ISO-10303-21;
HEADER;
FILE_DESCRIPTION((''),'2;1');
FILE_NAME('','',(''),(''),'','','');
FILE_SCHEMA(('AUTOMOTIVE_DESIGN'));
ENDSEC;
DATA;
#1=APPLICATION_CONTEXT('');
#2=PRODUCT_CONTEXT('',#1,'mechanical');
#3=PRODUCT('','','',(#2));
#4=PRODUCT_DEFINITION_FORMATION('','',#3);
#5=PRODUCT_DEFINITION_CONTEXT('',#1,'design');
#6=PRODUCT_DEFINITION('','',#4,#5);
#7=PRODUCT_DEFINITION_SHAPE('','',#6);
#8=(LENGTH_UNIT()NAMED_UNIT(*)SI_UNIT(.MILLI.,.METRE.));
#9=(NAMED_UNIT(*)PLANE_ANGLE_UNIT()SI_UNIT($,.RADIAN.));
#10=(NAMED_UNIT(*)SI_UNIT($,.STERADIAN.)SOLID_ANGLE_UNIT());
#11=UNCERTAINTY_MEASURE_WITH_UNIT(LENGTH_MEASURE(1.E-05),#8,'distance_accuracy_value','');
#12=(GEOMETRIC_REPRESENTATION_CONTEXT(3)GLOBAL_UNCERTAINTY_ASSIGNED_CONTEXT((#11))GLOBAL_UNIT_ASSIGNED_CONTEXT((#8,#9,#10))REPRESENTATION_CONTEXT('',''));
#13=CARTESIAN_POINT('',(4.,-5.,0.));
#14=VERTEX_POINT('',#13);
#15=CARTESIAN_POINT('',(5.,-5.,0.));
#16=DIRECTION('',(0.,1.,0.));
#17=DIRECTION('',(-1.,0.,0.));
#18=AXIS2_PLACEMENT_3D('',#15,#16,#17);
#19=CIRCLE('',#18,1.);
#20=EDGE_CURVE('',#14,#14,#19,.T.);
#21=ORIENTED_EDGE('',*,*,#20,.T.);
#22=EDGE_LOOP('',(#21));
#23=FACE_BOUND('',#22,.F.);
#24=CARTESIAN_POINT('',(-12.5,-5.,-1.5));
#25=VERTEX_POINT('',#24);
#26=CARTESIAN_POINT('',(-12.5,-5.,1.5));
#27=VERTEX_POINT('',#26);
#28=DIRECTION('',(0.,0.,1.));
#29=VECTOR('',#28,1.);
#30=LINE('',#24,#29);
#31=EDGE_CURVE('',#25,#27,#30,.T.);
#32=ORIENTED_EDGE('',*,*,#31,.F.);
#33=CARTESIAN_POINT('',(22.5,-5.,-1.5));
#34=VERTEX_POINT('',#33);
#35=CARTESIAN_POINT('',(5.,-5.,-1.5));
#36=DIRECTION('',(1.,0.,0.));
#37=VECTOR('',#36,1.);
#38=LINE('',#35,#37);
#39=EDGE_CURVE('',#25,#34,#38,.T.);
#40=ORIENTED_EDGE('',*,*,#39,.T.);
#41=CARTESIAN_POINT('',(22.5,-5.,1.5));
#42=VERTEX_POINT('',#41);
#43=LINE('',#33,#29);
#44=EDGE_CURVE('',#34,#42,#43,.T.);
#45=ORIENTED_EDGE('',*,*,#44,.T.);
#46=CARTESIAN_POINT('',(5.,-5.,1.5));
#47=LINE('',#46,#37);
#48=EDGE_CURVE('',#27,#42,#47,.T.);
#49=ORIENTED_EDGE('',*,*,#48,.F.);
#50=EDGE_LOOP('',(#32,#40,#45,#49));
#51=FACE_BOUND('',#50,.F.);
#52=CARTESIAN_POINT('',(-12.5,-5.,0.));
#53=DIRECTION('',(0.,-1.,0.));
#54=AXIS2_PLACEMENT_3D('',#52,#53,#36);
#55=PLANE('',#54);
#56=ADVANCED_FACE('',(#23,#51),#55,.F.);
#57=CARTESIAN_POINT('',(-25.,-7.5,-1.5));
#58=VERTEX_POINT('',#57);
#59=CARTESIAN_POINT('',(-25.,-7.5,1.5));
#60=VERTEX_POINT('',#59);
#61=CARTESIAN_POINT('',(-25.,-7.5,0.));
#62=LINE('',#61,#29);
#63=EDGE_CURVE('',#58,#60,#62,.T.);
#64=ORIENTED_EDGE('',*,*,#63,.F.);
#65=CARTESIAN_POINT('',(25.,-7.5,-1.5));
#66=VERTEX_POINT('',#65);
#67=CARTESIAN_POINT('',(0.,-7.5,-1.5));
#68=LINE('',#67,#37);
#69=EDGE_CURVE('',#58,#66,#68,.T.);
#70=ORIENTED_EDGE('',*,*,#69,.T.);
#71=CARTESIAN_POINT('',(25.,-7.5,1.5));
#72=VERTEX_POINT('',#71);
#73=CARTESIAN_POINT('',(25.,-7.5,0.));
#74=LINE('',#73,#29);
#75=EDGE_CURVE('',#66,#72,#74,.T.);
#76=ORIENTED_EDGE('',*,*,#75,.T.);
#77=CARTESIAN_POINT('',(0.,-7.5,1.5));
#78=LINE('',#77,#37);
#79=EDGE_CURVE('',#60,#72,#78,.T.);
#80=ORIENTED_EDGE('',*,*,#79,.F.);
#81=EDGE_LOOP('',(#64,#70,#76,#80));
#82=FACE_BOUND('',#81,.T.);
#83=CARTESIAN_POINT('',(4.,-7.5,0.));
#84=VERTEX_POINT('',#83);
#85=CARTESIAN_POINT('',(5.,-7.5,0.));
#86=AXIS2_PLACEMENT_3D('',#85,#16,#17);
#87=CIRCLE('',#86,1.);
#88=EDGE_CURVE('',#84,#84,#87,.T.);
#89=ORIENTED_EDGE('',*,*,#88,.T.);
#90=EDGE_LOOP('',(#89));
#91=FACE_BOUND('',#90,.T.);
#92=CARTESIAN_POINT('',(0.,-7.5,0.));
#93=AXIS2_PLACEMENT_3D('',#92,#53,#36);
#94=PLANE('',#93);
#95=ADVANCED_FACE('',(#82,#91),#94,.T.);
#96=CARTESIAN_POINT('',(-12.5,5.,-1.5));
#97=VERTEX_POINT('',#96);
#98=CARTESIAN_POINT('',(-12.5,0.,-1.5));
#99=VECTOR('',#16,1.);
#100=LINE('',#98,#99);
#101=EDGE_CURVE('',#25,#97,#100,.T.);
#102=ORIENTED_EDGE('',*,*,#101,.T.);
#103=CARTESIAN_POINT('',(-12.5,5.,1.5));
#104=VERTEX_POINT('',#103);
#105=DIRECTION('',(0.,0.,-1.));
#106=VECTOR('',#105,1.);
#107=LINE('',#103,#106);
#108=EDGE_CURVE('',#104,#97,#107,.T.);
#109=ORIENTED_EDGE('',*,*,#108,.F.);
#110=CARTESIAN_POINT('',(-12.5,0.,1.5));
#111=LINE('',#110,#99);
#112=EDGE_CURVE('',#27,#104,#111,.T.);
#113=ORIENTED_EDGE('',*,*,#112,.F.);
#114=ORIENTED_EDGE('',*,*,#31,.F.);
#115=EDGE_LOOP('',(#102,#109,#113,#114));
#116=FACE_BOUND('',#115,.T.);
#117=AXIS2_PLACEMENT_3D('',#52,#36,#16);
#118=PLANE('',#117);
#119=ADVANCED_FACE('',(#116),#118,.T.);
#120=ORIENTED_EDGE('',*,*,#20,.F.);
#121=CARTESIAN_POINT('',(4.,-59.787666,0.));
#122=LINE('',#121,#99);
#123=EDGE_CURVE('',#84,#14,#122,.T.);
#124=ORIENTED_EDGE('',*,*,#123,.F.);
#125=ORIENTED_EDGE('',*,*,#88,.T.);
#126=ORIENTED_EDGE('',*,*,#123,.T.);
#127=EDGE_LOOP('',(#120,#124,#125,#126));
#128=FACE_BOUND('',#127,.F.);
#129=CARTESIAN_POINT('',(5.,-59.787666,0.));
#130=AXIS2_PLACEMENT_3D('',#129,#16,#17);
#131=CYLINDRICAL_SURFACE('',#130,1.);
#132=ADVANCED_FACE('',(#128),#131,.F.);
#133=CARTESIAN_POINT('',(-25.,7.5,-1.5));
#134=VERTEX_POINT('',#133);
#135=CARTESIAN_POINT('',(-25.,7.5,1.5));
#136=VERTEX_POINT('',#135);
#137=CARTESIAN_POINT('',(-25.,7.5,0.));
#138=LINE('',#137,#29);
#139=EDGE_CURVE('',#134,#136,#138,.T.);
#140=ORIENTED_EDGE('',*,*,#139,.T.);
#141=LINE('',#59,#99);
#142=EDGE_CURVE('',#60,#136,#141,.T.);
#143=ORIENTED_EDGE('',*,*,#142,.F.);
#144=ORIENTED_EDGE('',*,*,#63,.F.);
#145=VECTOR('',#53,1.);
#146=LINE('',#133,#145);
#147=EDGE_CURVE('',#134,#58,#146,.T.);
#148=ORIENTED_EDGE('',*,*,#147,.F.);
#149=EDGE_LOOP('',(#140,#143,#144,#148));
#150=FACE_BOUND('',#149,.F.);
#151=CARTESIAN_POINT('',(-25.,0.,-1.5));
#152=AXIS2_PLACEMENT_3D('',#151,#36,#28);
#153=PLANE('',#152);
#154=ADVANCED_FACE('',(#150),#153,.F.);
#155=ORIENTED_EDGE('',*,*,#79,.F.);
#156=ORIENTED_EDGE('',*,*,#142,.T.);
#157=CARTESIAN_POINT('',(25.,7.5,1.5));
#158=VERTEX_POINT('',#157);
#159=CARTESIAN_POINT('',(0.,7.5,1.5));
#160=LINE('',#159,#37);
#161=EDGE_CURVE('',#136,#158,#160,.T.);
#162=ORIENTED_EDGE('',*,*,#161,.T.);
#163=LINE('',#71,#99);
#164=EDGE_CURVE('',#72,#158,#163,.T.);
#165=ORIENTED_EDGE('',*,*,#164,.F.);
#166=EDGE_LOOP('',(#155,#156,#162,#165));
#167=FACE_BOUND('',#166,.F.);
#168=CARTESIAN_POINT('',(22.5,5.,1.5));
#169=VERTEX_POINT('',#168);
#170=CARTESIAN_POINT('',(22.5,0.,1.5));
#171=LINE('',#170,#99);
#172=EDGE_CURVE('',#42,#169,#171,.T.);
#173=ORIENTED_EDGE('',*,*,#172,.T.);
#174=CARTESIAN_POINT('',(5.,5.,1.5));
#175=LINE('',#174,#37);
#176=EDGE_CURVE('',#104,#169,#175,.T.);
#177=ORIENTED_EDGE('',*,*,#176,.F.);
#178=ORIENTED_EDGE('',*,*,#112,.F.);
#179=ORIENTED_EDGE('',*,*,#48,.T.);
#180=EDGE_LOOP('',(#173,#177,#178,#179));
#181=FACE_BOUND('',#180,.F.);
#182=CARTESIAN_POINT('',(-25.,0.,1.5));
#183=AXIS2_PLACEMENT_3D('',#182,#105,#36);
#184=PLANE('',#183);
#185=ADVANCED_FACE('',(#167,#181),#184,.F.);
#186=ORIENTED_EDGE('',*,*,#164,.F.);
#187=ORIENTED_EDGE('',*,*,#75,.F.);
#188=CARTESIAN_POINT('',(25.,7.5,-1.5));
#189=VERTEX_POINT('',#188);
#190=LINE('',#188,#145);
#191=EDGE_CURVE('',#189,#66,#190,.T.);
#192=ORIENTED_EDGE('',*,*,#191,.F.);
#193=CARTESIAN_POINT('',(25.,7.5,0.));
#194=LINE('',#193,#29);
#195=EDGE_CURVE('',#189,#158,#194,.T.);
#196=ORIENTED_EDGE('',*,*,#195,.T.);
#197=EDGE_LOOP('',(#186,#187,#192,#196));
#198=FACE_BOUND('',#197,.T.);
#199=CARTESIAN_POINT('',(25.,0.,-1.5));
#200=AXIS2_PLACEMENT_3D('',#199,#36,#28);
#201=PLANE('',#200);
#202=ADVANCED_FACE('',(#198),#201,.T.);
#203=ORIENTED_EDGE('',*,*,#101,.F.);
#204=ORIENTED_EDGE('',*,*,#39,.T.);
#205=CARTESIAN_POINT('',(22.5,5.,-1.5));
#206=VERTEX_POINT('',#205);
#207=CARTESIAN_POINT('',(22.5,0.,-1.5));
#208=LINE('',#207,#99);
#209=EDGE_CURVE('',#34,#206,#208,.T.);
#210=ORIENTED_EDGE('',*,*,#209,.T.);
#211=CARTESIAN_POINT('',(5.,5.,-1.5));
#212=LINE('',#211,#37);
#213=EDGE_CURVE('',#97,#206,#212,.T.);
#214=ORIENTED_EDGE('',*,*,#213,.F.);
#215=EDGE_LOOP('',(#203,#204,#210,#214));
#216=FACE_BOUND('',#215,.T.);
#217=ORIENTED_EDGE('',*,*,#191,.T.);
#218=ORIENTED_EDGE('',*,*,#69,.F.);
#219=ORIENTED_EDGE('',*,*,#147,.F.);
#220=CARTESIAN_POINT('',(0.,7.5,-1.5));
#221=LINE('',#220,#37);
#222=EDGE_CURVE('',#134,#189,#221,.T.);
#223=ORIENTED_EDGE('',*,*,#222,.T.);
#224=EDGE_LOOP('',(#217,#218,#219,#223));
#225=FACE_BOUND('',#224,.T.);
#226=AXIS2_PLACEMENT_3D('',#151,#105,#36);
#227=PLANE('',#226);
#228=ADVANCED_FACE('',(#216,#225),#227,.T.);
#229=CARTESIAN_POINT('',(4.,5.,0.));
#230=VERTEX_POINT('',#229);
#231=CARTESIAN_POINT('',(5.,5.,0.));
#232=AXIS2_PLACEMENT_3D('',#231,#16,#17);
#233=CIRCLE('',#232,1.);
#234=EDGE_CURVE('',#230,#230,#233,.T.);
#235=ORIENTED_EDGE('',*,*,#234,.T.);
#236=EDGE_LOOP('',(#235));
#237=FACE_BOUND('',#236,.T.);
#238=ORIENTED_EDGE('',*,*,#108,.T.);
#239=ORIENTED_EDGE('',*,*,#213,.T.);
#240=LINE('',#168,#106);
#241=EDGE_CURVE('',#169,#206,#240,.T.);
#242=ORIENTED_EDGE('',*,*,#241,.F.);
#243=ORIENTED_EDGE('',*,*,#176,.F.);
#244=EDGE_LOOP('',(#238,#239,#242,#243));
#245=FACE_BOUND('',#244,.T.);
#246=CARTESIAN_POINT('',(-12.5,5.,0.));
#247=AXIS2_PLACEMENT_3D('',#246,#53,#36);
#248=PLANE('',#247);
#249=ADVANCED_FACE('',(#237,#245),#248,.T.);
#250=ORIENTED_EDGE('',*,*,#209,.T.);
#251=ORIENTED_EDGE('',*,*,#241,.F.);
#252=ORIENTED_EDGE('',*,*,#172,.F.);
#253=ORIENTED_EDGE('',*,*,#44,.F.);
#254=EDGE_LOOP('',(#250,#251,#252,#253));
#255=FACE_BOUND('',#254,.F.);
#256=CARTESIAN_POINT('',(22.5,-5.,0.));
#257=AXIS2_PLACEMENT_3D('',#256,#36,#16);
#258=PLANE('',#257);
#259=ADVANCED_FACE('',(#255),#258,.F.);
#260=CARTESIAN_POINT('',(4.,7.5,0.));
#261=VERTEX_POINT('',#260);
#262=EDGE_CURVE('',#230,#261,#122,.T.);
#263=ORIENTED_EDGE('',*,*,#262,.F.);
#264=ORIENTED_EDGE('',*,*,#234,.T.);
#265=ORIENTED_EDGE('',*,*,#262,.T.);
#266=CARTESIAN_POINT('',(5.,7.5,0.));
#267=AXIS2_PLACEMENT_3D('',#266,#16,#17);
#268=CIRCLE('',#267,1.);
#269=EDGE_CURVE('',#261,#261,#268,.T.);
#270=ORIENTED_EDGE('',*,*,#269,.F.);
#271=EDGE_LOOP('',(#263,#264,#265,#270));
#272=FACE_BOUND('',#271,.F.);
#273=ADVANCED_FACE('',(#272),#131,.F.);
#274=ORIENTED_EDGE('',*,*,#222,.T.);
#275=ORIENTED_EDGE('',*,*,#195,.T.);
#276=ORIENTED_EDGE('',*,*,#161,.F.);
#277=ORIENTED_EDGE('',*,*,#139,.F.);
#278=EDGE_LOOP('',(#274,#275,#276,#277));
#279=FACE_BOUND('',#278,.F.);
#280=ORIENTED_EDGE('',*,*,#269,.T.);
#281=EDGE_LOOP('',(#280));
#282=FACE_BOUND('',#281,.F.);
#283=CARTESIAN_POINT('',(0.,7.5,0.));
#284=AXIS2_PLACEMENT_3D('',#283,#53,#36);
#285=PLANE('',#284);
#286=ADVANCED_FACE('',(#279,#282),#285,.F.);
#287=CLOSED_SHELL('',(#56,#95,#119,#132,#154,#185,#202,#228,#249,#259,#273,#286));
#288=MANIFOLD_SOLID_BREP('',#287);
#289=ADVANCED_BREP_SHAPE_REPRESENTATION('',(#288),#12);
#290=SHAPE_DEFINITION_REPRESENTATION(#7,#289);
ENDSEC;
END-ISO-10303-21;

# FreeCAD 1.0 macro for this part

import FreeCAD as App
import Part
import Sketcher

V = App.Vector

doc = App.newDocument("Part")
body = doc.addObject("PartDesign::Body", "Body")

sketch1 = doc.addObject("Sketcher::SketchObject", "Sketch")
body.addObject(sketch1)
sketch1.AttachmentSupport = (doc.XZ_Plane, [""])
sketch1.MapMode = "FlatFace"
sketch1.addGeometry(Part.LineSegment(V(-25, 1.5, 0), V(-25, -1.5, 0)), False)
sketch1.addGeometry(Part.LineSegment(V(-25, -1.5, 0), V(25, -1.5, 0)), False)
sketch1.addGeometry(Part.LineSegment(V(25, -1.5, 0), V(25, 1.5, 0)), False)
sketch1.addGeometry(Part.LineSegment(V(25, 1.5, 0), V(-25, 1.5, 0)), False)
sketch1.addConstraint(Sketcher.Constraint("Coincident", 0, 2, 1, 1))
sketch1.addConstraint(Sketcher.Constraint("Coincident", 1, 2, 2, 1))
sketch1.addConstraint(Sketcher.Constraint("Coincident", 2, 2, 3, 1))
sketch1.addConstraint(Sketcher.Constraint("Coincident", 3, 2, 0, 1))
sketch1.addConstraint(Sketcher.Constraint("Vertical", 0))
sketch1.addConstraint(Sketcher.Constraint("Horizontal", 1))
sketch1.addConstraint(Sketcher.Constraint("Vertical", 2))
sketch1.addConstraint(Sketcher.Constraint("Horizontal", 3))
sketch1.addConstraint(Sketcher.Constraint("Symmetric", 0, 2, 2, 2, -1, 1))
sketch1.addConstraint(Sketcher.Constraint("DistanceX", 1, 1, 1, 2, 50.0))
sketch1.addConstraint(Sketcher.Constraint("DistanceY", 0, 2, 0, 1, 3.0))
pad1 = doc.addObject("PartDesign::Pad", "Pad")
body.addObject(pad1)
pad1.Profile = sketch1
pad1.Length = 15
pad1.Midplane = True

sketch2 = doc.addObject("Sketcher::SketchObject", "Sketch001")
body.addObject(sketch2)
sketch2.AttachmentSupport = (doc.XY_Plane, [""])
sketch2.MapMode = "FlatFace"
sketch2.addGeometry(Part.LineSegment(V(-12.5, 5, 0), V(-12.5, -5, 0)), False)
sketch2.addGeometry(Part.LineSegment(V(-12.5, -5, 0), V(22.5, -5, 0)), False)
sketch2.addGeometry(Part.LineSegment(V(22.5, -5, 0), V(22.5, 5, 0)), False)
sketch2.addGeometry(Part.LineSegment(V(22.5, 5, 0), V(-12.5, 5, 0)), False)
sketch2.addConstraint(Sketcher.Constraint("Coincident", 0, 2, 1, 1))
sketch2.addConstraint(Sketcher.Constraint("Coincident", 1, 2, 2, 1))
sketch2.addConstraint(Sketcher.Constraint("Coincident", 2, 2, 3, 1))
sketch2.addConstraint(Sketcher.Constraint("Coincident", 3, 2, 0, 1))
sketch2.addConstraint(Sketcher.Constraint("Vertical", 0))
sketch2.addConstraint(Sketcher.Constraint("Horizontal", 1))
sketch2.addConstraint(Sketcher.Constraint("Vertical", 2))
sketch2.addConstraint(Sketcher.Constraint("Horizontal", 3))
sketch2.addConstraint(Sketcher.Constraint("DistanceX", 1, 1, 1, 2, 35.0))
sketch2.addConstraint(Sketcher.Constraint("DistanceY", 0, 2, 0, 1, 10.0))
sketch2.addConstraint(Sketcher.Constraint("DistanceY", 0, 2, -1, 1, 5.0))
sketch2.addConstraint(Sketcher.Constraint("DistanceX", 0, 2, -1, 1, 12.5))
pocket1 = doc.addObject("PartDesign::Pocket", "Pocket")
body.addObject(pocket1)
pocket1.Profile = sketch2
pocket1.Length = 3
pocket1.Midplane = True

sketch3 = doc.addObject("Sketcher::SketchObject", "Sketch002")
body.addObject(sketch3)
sketch3.AttachmentSupport = (doc.XZ_Plane, [""])
sketch3.MapMode = "FlatFace"
sketch3.AttachmentOffset = App.Placement(V(0, 0, 7.5), App.Rotation())
sketch3.addGeometry(Part.Circle(V(5, 0, 0), V(0, 0, 1), 1), False)
sketch3.addConstraint(Sketcher.Constraint("PointOnObject", 0, 3, -1))
sketch3.addConstraint(Sketcher.Constraint("Diameter", 0, 2.0))
sketch3.addConstraint(Sketcher.Constraint("DistanceX", -1, 1, 0, 3, 5.0))
doc.recompute()
hole = doc.addObject("PartDesign::Hole", "Hole")
body.addObject(hole)
hole.Profile = sketch3
hole.ThreadType = "None"
hole.Diameter = 2
hole.DepthType = "ThroughAll"

doc.recompute()
